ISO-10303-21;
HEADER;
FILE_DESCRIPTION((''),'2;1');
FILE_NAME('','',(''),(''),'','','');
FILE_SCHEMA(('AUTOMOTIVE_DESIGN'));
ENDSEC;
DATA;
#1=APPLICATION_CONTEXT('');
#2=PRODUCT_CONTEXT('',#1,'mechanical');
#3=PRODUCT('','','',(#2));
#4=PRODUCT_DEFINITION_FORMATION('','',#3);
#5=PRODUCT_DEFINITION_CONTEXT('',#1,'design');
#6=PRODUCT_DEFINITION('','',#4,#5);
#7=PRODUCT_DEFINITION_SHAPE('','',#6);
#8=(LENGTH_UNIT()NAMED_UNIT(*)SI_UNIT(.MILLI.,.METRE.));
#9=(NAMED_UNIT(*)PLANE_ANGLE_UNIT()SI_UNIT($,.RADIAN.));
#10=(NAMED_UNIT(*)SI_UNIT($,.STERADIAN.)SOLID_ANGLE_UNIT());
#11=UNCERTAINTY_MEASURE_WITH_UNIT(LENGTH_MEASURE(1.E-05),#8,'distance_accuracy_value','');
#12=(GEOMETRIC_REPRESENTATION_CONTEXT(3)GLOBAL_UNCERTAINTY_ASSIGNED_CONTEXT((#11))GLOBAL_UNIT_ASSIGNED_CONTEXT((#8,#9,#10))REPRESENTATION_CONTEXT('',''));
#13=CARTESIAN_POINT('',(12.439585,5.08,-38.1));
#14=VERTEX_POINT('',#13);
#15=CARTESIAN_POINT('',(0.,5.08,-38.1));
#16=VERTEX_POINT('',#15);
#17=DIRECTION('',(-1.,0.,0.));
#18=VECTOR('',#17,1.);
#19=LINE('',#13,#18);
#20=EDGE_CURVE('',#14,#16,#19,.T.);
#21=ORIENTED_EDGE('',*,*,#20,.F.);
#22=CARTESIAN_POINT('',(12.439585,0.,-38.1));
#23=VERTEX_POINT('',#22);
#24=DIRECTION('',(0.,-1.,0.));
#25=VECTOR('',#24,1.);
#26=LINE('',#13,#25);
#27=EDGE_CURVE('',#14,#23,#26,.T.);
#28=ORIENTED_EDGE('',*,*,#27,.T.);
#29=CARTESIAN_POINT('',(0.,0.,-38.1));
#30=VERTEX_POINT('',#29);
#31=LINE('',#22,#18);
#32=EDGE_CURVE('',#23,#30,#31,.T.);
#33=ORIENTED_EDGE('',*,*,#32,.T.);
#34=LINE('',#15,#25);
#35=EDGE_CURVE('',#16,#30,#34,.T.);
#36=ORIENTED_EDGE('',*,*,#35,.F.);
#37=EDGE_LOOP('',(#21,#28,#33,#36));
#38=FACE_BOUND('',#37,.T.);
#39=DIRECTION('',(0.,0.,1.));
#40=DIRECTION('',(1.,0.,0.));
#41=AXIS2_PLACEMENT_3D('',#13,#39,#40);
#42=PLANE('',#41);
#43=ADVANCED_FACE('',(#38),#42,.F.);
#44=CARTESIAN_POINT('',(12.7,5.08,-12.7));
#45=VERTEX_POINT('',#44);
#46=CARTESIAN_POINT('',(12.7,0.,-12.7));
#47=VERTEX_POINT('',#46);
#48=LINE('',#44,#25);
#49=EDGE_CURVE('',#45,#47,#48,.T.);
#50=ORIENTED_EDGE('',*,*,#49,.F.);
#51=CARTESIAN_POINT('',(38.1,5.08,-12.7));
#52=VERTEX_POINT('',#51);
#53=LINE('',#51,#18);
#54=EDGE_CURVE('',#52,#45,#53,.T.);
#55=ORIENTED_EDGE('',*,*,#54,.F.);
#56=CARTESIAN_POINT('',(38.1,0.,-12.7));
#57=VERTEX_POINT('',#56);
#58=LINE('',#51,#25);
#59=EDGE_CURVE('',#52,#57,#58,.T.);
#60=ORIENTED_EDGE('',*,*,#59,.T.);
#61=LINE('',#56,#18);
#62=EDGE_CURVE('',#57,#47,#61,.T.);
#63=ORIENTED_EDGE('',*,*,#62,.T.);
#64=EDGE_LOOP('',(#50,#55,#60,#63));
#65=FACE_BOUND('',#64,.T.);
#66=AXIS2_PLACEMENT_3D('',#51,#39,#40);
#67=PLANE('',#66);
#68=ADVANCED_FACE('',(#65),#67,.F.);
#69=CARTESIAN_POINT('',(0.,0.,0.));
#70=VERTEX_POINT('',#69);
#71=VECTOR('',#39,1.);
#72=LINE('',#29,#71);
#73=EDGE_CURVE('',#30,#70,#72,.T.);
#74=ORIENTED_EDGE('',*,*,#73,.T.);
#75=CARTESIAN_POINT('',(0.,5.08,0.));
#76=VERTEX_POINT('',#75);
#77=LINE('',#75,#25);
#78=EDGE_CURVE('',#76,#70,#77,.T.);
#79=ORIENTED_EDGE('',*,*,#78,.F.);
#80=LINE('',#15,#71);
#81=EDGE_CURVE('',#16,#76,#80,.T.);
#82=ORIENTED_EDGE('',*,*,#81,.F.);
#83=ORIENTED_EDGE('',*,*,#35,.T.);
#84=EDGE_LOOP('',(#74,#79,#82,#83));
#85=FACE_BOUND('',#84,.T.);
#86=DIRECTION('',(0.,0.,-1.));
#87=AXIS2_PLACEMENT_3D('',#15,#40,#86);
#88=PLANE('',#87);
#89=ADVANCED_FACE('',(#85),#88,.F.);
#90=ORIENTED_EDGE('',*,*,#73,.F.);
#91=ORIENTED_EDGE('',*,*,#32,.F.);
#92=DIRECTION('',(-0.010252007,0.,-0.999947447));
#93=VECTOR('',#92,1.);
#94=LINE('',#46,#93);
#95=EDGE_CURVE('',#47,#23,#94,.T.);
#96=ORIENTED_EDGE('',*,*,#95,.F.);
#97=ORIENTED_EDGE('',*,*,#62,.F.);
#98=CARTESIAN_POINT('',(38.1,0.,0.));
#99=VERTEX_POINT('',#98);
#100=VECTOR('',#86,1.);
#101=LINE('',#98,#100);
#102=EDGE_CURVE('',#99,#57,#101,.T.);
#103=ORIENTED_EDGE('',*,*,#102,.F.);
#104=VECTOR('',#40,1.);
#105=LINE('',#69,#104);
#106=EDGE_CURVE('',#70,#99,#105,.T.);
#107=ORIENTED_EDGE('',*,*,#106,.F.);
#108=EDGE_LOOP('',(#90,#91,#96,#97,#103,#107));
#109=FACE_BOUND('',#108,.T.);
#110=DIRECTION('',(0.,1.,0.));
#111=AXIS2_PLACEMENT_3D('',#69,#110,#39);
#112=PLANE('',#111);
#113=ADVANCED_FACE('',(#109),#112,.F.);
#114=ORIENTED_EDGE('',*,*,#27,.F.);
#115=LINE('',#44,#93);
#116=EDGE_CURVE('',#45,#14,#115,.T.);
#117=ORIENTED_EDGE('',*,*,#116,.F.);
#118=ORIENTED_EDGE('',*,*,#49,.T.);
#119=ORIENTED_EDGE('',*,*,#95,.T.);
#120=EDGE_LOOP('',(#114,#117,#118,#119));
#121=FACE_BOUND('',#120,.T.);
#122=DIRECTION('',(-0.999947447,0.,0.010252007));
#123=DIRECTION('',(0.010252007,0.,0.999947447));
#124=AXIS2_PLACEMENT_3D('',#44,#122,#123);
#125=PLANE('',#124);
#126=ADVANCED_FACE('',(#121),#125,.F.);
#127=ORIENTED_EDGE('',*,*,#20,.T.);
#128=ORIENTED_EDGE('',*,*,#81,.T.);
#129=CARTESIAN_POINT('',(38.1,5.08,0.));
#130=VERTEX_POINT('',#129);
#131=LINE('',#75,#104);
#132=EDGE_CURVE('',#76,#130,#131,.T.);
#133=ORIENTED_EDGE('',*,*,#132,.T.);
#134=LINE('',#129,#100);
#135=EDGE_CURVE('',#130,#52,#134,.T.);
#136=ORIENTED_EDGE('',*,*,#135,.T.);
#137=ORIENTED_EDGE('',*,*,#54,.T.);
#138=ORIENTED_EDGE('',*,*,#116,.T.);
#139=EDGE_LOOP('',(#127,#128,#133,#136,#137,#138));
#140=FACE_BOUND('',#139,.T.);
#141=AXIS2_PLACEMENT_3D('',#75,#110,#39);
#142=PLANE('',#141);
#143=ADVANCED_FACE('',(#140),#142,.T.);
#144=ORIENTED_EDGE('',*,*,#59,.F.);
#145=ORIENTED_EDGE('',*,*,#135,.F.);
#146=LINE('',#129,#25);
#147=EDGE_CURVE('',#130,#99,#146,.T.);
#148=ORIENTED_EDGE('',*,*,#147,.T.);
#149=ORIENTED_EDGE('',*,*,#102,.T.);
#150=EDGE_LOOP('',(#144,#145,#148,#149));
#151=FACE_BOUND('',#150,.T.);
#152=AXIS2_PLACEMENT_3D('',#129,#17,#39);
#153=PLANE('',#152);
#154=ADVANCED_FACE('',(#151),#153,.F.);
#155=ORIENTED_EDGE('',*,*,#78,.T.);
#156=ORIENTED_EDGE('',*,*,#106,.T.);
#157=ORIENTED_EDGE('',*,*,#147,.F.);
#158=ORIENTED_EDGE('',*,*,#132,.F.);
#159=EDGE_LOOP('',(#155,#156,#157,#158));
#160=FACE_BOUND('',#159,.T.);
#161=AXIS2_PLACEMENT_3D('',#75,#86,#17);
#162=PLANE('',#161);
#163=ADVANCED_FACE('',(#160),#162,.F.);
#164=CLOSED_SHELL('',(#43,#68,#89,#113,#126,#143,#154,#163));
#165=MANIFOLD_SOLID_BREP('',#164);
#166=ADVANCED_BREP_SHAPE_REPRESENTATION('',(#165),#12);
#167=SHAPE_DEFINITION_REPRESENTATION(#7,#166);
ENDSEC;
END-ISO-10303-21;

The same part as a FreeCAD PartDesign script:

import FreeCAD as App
import Part
import Sketcher
from FreeCAD import Vector
Q = App.Units.Quantity


def add_polygon(sketch, points):
    """Adds a closed chain of lines whose ends are joined by coincident constraints."""
    first, n = sketch.GeometryCount, len(points)
    for a, b in zip(points, points[1:] + points[:1]):
        sketch.addGeometry(Part.LineSegment(App.Vector(*a, 0), App.Vector(*b, 0)), False)
    for i in range(n):
        sketch.addConstraint(Sketcher.Constraint("Coincident", first + i, 2, first + (i + 1) % n, 1))

doc = App.newDocument("Part")
params = doc.addObject("Spreadsheet::Sheet", "Params")
for row, (alias, value) in enumerate([
    ("sketch1_width", "1 in"),
    ("sketch1_width2", "1.5 in"),
    ("sketch1_height", "0.5 in"),
    ("pad1_length", "0.2 in"),
], start=1):
    params.set(f"A{row}", alias)
    params.set(f"B{row}", "=" + value)
    params.setAlias(f"B{row}", alias)

body = doc.addObject("PartDesign::Body", "Body")

sketch1 = doc.addObject("Sketcher::SketchObject", "Sketch")
body.addObject(sketch1)
sketch1.AttachmentSupport = (doc.XZ_Plane, [""])
sketch1.MapMode = "FlatFace"
add_polygon(sketch1, [(0, 0), (38, 0), (38, -13), (13, -13), (12, -38), (0, -38)])
sketch1.addConstraint(Sketcher.Constraint("Horizontal", 0))
sketch1.addConstraint(Sketcher.Constraint("Vertical", 1))
sketch1.addConstraint(Sketcher.Constraint("Horizontal", 2))
sketch1.addConstraint(Sketcher.Constraint("Horizontal", 4))
sketch1.addConstraint(Sketcher.Constraint("Vertical", 5))
sketch1.addConstraint(Sketcher.Constraint("Coincident", 5, 2, -1, 1))
sketch1.addConstraint(Sketcher.Constraint("Equal", 0, 5))
sketch1.addConstraint(Sketcher.Constraint("DistanceX", 2, 2, 2, 1, Q("1 in")))
sketch1.addConstraint(Sketcher.Constraint("DistanceX", 0, 1, 0, 2, Q("1.5 in")))
sketch1.addConstraint(Sketcher.Constraint("DistanceY", 1, 2, 1, 1, Q("0.5 in")))
sketch1.addConstraint(Sketcher.Constraint("DistanceX", 4, 2, 4, 1, 12.439585))
sketch1.setExpression("Constraints[13]", "Params.sketch1_width")
sketch1.setExpression("Constraints[14]", "Params.sketch1_width2")
sketch1.setExpression("Constraints[15]", "Params.sketch1_height")
pad1 = doc.addObject("PartDesign::Pad", "Pad")
body.addObject(pad1)
pad1.Profile = sketch1
pad1.setExpression("Length", "Params.pad1_length")
pad1.Reversed = True

doc.recompute()
